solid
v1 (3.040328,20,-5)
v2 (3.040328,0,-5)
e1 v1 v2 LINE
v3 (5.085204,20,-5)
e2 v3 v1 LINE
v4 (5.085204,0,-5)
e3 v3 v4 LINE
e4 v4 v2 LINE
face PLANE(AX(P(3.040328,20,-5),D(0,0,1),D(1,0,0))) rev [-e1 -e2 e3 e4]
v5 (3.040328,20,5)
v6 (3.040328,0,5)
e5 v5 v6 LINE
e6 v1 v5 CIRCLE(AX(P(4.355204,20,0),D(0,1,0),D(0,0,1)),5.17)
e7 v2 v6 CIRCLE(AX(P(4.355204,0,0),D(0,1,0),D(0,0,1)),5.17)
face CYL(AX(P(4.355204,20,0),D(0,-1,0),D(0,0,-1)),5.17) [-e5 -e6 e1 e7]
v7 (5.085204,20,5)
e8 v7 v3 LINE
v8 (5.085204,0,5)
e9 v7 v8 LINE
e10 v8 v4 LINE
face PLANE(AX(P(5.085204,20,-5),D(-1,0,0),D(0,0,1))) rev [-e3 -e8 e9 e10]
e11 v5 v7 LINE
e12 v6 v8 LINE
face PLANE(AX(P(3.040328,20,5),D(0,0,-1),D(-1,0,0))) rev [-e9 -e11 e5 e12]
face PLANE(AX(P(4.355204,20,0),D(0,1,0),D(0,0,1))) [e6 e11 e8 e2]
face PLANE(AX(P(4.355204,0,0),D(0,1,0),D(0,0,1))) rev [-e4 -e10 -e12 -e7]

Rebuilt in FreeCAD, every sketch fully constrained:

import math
import FreeCAD as App
import Part
import Sketcher

V = App.Vector

doc = App.newDocument("Part")
body = doc.addObject("PartDesign::Body", "Body")

sketch1 = body.newObject("Sketcher::SketchObject", "Sketch")
sketch1.AttachmentSupport = (doc.getObject("XZ_Plane"), [""])
sketch1.MapMode = "FlatFace"
sketch1.addGeometry([
    Part.LineSegment(V(5.1, -5, 0), V(3, -5, 0)),
    Part.ArcOfCircle(Part.Circle(V(4.4, 0, 0), V(0, 0, 1), 5.2), math.radians(105), math.radians(255)),
    Part.LineSegment(V(3, 5, 0), V(5.1, 5, 0)),
    Part.LineSegment(V(5.1, 5, 0), V(5.1, -5, 0)),
], False)
sketch1.addConstraint([
    Sketcher.Constraint("Coincident", 0, 2, 1, 2),
    Sketcher.Constraint("Coincident", 1, 1, 2, 1),
    Sketcher.Constraint("Coincident", 2, 2, 3, 1),
    Sketcher.Constraint("Coincident", 3, 2, 0, 1),
    Sketcher.Constraint("Horizontal", 0),
    Sketcher.Constraint("Horizontal", 2),
    Sketcher.Constraint("Vertical", 3),
    Sketcher.Constraint("Symmetric", 0, 2, 1, 1, -1),
    Sketcher.Constraint("DistanceY", 3, 2, 3, 1, 10.0),
    Sketcher.Constraint("Radius", 1, 5.17),
    Sketcher.Constraint("DistanceX", 1, 3, 2, 2, 0.73),
    Sketcher.Constraint("DistanceX", -1, 1, 1, 3, 4.355204),
])
pad1 = body.newObject("PartDesign::Pad", "Pad")
pad1.Profile = sketch1
pad1.Length = 20
pad1.Reversed = True

doc.recompute()
